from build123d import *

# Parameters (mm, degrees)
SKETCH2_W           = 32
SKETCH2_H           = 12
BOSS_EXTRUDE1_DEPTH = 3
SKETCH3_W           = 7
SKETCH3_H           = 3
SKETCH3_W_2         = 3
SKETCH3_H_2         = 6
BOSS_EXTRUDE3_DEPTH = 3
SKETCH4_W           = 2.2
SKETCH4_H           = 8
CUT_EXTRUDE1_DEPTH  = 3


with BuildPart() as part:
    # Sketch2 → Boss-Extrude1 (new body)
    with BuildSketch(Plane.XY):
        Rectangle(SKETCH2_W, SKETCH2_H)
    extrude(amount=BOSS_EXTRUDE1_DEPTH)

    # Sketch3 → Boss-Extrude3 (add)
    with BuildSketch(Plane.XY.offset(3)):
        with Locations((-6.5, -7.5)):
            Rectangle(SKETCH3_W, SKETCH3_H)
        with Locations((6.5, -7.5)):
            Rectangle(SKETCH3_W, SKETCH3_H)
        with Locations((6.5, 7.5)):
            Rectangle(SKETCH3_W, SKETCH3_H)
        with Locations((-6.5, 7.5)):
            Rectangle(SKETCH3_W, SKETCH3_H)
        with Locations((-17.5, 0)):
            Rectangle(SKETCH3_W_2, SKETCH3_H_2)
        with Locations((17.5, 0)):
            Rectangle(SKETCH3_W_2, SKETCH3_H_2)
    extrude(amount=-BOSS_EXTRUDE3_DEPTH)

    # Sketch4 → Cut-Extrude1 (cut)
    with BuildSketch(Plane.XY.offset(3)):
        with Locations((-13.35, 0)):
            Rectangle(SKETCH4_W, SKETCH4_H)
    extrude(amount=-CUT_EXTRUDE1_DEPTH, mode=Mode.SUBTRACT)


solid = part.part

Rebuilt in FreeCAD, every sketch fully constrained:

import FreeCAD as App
import Part
import Sketcher

doc = App.newDocument("Part")
body = doc.addObject("PartDesign::Body", "Body")

# Sketch on XY plane
sketch1 = body.newObject("Sketcher::SketchObject", "Sketch")
sketch1.AttachmentSupport = (doc.getObject("XY_Plane"), [""])
sketch1.MapMode = "FlatFace"
sketch1.addGeometry(Part.LineSegment(App.Vector(-16, 6, 0), App.Vector(-16, -6, 0)), False)
sketch1.addGeometry(Part.LineSegment(App.Vector(-16, -6, 0), App.Vector(16, -6, 0)), False)
sketch1.addGeometry(Part.LineSegment(App.Vector(16, -6, 0), App.Vector(16, 6, 0)), False)
sketch1.addGeometry(Part.LineSegment(App.Vector(16, 6, 0), App.Vector(-16, 6, 0)), False)
sketch1.addConstraint(Sketcher.Constraint("Coincident", 0, 2, 1, 1))
sketch1.addConstraint(Sketcher.Constraint("Coincident", 1, 2, 2, 1))
sketch1.addConstraint(Sketcher.Constraint("Coincident", 2, 2, 3, 1))
sketch1.addConstraint(Sketcher.Constraint("Coincident", 3, 2, 0, 1))
sketch1.addConstraint(Sketcher.Constraint("Vertical", 0))
sketch1.addConstraint(Sketcher.Constraint("Horizontal", 1))
sketch1.addConstraint(Sketcher.Constraint("Vertical", 2))
sketch1.addConstraint(Sketcher.Constraint("Horizontal", 3))
sketch1.addConstraint(Sketcher.Constraint("Symmetric", 0, 2, 2, 2, -1, 1))
sketch1.addConstraint(Sketcher.Constraint("DistanceX", 1, 1, 1, 2, 32.0))
sketch1.addConstraint(Sketcher.Constraint("DistanceY", 0, 2, 0, 1, 12.0))
pad1 = body.newObject("PartDesign::Pad", "Pad")
pad1.Profile = sketch1
pad1.Length = 3

# Sketch on XY plane
sketch2 = body.newObject("Sketcher::SketchObject", "Sketch001")
sketch2.AttachmentSupport = (doc.getObject("XY_Plane"), [""])
sketch2.MapMode = "FlatFace"
sketch2.AttachmentOffset = App.Placement(App.Vector(0, 0, 3), App.Rotation())
sketch2.addGeometry(Part.LineSegment(App.Vector(-10, -6, 0), App.Vector(-10, -9, 0)), False)
sketch2.addGeometry(Part.LineSegment(App.Vector(-10, -9, 0), App.Vector(-3, -9, 0)), False)
sketch2.addGeometry(Part.LineSegment(App.Vector(-3, -9, 0), App.Vector(-3, -6, 0)), False)
sketch2.addGeometry(Part.LineSegment(App.Vector(-3, -6, 0), App.Vector(-10, -6, 0)), False)
sketch2.addGeometry(Part.LineSegment(App.Vector(3, -6, 0), App.Vector(3, -9, 0)), False)
sketch2.addGeometry(Part.LineSegment(App.Vector(3, -9, 0), App.Vector(10, -9, 0)), False)
sketch2.addGeometry(Part.LineSegment(App.Vector(10, -9, 0), App.Vector(10, -6, 0)), False)
sketch2.addGeometry(Part.LineSegment(App.Vector(10, -6, 0), App.Vector(3, -6, 0)), False)
sketch2.addGeometry(Part.LineSegment(App.Vector(3, 9, 0), App.Vector(3, 6, 0)), False)
sketch2.addGeometry(Part.LineSegment(App.Vector(3, 6, 0), App.Vector(10, 6, 0)), False)
sketch2.addGeometry(Part.LineSegment(App.Vector(10, 6, 0), App.Vector(10, 9, 0)), False)
sketch2.addGeometry(Part.LineSegment(App.Vector(10, 9, 0), App.Vector(3, 9, 0)), False)
sketch2.addGeometry(Part.LineSegment(App.Vector(-10, 9, 0), App.Vector(-10, 6, 0)), False)
sketch2.addGeometry(Part.LineSegment(App.Vector(-10, 6, 0), App.Vector(-3, 6, 0)), False)
sketch2.addGeometry(Part.LineSegment(App.Vector(-3, 6, 0), App.Vector(-3, 9, 0)), False)
sketch2.addGeometry(Part.LineSegment(App.Vector(-3, 9, 0), App.Vector(-10, 9, 0)), False)
sketch2.addGeometry(Part.LineSegment(App.Vector(-19, 3, 0), App.Vector(-19, -3, 0)), False)
sketch2.addGeometry(Part.LineSegment(App.Vector(-19, -3, 0), App.Vector(-16, -3, 0)), False)
sketch2.addGeometry(Part.LineSegment(App.Vector(-16, -3, 0), App.Vector(-16, 3, 0)), False)
sketch2.addGeometry(Part.LineSegment(App.Vector(-16, 3, 0), App.Vector(-19, 3, 0)), False)
sketch2.addGeometry(Part.LineSegment(App.Vector(16, 3, 0), App.Vector(16, -3, 0)), False)
sketch2.addGeometry(Part.LineSegment(App.Vector(16, -3, 0), App.Vector(19, -3, 0)), False)
sketch2.addGeometry(Part.LineSegment(App.Vector(19, -3, 0), App.Vector(19, 3, 0)), False)
sketch2.addGeometry(Part.LineSegment(App.Vector(19, 3, 0), App.Vector(16, 3, 0)), False)
sketch2.addConstraint(Sketcher.Constraint("Coincident", 0, 2, 1, 1))
sketch2.addConstraint(Sketcher.Constraint("Coincident", 1, 2, 2, 1))
sketch2.addConstraint(Sketcher.Constraint("Coincident", 2, 2, 3, 1))
sketch2.addConstraint(Sketcher.Constraint("Coincident", 3, 2, 0, 1))
sketch2.addConstraint(Sketcher.Constraint("Coincident", 4, 2, 5, 1))
sketch2.addConstraint(Sketcher.Constraint("Coincident", 5, 2, 6, 1))
sketch2.addConstraint(Sketcher.Constraint("Coincident", 6, 2, 7, 1))
sketch2.addConstraint(Sketcher.Constraint("Coincident", 7, 2, 4, 1))
sketch2.addConstraint(Sketcher.Constraint("Coincident", 8, 2, 9, 1))
sketch2.addConstraint(Sketcher.Constraint("Coincident", 9, 2, 10, 1))
sketch2.addConstraint(Sketcher.Constraint("Coincident", 10, 2, 11, 1))
sketch2.addConstraint(Sketcher.Constraint("Coincident", 11, 2, 8, 1))
sketch2.addConstraint(Sketcher.Constraint("Coincident", 12, 2, 13, 1))
sketch2.addConstraint(Sketcher.Constraint("Coincident", 13, 2, 14, 1))
sketch2.addConstraint(Sketcher.Constraint("Coincident", 14, 2, 15, 1))
sketch2.addConstraint(Sketcher.Constraint("Coincident", 15, 2, 12, 1))
sketch2.addConstraint(Sketcher.Constraint("Coincident", 16, 2, 17, 1))
sketch2.addConstraint(Sketcher.Constraint("Coincident", 17, 2, 18, 1))
sketch2.addConstraint(Sketcher.Constraint("Coincident", 18, 2, 19, 1))
sketch2.addConstraint(Sketcher.Constraint("Coincident", 19, 2, 16, 1))
sketch2.addConstraint(Sketcher.Constraint("Coincident", 20, 2, 21, 1))
sketch2.addConstraint(Sketcher.Constraint("Coincident", 21, 2, 22, 1))
sketch2.addConstraint(Sketcher.Constraint("Coincident", 22, 2, 23, 1))
sketch2.addConstraint(Sketcher.Constraint("Coincident", 23, 2, 20, 1))
sketch2.addConstraint(Sketcher.Constraint("Vertical", 0))
sketch2.addConstraint(Sketcher.Constraint("Horizontal", 1))
sketch2.addConstraint(Sketcher.Constraint("Vertical", 2))
sketch2.addConstraint(Sketcher.Constraint("Horizontal", 3))
sketch2.addConstraint(Sketcher.Constraint("Vertical", 4))
sketch2.addConstraint(Sketcher.Constraint("Horizontal", 5))
sketch2.addConstraint(Sketcher.Constraint("Vertical", 6))
sketch2.addConstraint(Sketcher.Constraint("Horizontal", 7))
sketch2.addConstraint(Sketcher.Constraint("Vertical", 8))
sketch2.addConstraint(Sketcher.Constraint("Horizontal", 9))
sketch2.addConstraint(Sketcher.Constraint("Vertical", 10))
sketch2.addConstraint(Sketcher.Constraint("Horizontal", 11))
sketch2.addConstraint(Sketcher.Constraint("Vertical", 12))
sketch2.addConstraint(Sketcher.Constraint("Horizontal", 13))
sketch2.addConstraint(Sketcher.Constraint("Vertical", 14))
sketch2.addConstraint(Sketcher.Constraint("Horizontal", 15))
sketch2.addConstraint(Sketcher.Constraint("Vertical", 16))
sketch2.addConstraint(Sketcher.Constraint("Horizontal", 17))
sketch2.addConstraint(Sketcher.Constraint("Vertical", 18))
sketch2.addConstraint(Sketcher.Constraint("Horizontal", 19))
sketch2.addConstraint(Sketcher.Constraint("Vertical", 20))
sketch2.addConstraint(Sketcher.Constraint("Horizontal", 21))
sketch2.addConstraint(Sketcher.Constraint("Vertical", 22))
sketch2.addConstraint(Sketcher.Constraint("Horizontal", 23))
sketch2.addConstraint(Sketcher.Constraint("Symmetric", 2, 2, 8, 2, -1, 1))
sketch2.addConstraint(Sketcher.Constraint("Symmetric", 0, 2, 10, 2, -1, 1))
sketch2.addConstraint(Sketcher.Constraint("Symmetric", 6, 2, 12, 2, -1, 1))
sketch2.addConstraint(Sketcher.Constraint("Symmetric", 4, 2, 14, 2, -1, 1))
sketch2.addConstraint(Sketcher.Constraint("Symmetric", 18, 2, 20, 2, -1, 1))
sketch2.addConstraint(Sketcher.Constraint("Symmetric", 16, 2, 22, 2, -1, 1))
sketch2.addConstraint(Sketcher.Constraint("Symmetric", 1, 2, 4, 2, -2))
sketch2.addConstraint(Sketcher.Constraint("Symmetric", 3, 2, 6, 2, -2))
sketch2.addConstraint(Sketcher.Constraint("Horizontal", 17, 2, 20, 2))
sketch2.addConstraint(Sketcher.Constraint("Equal", 23, 0))
sketch2.addConstraint(Sketcher.Constraint("DistanceX", 1, 1, 1, 2, 7.0))
sketch2.addConstraint(Sketcher.Constraint("DistanceX", 17, 1, 17, 2, 3.0))
sketch2.addConstraint(Sketcher.Constraint("DistanceY", 16, 2, 16, 1, 6.0))
sketch2.addConstraint(Sketcher.Constraint("DistanceX", 0, 2, -1, 1, 10.0))
sketch2.addConstraint(Sketcher.Constraint("DistanceY", 0, 2, -1, 1, 9.0))
sketch2.addConstraint(Sketcher.Constraint("DistanceX", 16, 2, -1, 1, 19.0))
pad2 = body.newObject("PartDesign::Pad", "Pad001")
pad2.Profile = sketch2
pad2.Length = 3
pad2.Reversed = True

# Sketch on XY plane
sketch3 = body.newObject("Sketcher::SketchObject", "Sketch002")
sketch3.AttachmentSupport = (doc.getObject("XY_Plane"), [""])
sketch3.MapMode = "FlatFace"
sketch3.AttachmentOffset = App.Placement(App.Vector(0, 0, 3), App.Rotation())
sketch3.addGeometry(Part.LineSegment(App.Vector(-14.4, 4, 0), App.Vector(-14.4, -4, 0)), False)
sketch3.addGeometry(Part.LineSegment(App.Vector(-14.4, -4, 0), App.Vector(-12.2, -4, 0)), False)
sketch3.addGeometry(Part.LineSegment(App.Vector(-12.2, -4, 0), App.Vector(-12.2, 4, 0)), False)
sketch3.addGeometry(Part.LineSegment(App.Vector(-12.2, 4, 0), App.Vector(-14.4, 4, 0)), False)
sketch3.addConstraint(Sketcher.Constraint("Coincident", 0, 2, 1, 1))
sketch3.addConstraint(Sketcher.Constraint("Coincident", 1, 2, 2, 1))
sketch3.addConstraint(Sketcher.Constraint("Coincident", 2, 2, 3, 1))
sketch3.addConstraint(Sketcher.Constraint("Coincident", 3, 2, 0, 1))
sketch3.addConstraint(Sketcher.Constraint("Vertical", 0))
sketch3.addConstraint(Sketcher.Constraint("Horizontal", 1))
sketch3.addConstraint(Sketcher.Constraint("Vertical", 2))
sketch3.addConstraint(Sketcher.Constraint("Horizontal", 3))
sketch3.addConstraint(Sketcher.Constraint("DistanceY", 0, 2, 0, 1, 8.0))
sketch3.addConstraint(Sketcher.Constraint("DistanceX", 1, 1, 1, 2, 2.2))
sketch3.addConstraint(Sketcher.Constraint("DistanceY", 0, 2, -1, 1, 4.0))
sketch3.addConstraint(Sketcher.Constraint("DistanceX", 0, 2, -1, 1, 14.45))
pocket1 = body.newObject("PartDesign::Pocket", "Pocket")
pocket1.Profile = sketch3
pocket1.Length = 3

doc.recompute()
